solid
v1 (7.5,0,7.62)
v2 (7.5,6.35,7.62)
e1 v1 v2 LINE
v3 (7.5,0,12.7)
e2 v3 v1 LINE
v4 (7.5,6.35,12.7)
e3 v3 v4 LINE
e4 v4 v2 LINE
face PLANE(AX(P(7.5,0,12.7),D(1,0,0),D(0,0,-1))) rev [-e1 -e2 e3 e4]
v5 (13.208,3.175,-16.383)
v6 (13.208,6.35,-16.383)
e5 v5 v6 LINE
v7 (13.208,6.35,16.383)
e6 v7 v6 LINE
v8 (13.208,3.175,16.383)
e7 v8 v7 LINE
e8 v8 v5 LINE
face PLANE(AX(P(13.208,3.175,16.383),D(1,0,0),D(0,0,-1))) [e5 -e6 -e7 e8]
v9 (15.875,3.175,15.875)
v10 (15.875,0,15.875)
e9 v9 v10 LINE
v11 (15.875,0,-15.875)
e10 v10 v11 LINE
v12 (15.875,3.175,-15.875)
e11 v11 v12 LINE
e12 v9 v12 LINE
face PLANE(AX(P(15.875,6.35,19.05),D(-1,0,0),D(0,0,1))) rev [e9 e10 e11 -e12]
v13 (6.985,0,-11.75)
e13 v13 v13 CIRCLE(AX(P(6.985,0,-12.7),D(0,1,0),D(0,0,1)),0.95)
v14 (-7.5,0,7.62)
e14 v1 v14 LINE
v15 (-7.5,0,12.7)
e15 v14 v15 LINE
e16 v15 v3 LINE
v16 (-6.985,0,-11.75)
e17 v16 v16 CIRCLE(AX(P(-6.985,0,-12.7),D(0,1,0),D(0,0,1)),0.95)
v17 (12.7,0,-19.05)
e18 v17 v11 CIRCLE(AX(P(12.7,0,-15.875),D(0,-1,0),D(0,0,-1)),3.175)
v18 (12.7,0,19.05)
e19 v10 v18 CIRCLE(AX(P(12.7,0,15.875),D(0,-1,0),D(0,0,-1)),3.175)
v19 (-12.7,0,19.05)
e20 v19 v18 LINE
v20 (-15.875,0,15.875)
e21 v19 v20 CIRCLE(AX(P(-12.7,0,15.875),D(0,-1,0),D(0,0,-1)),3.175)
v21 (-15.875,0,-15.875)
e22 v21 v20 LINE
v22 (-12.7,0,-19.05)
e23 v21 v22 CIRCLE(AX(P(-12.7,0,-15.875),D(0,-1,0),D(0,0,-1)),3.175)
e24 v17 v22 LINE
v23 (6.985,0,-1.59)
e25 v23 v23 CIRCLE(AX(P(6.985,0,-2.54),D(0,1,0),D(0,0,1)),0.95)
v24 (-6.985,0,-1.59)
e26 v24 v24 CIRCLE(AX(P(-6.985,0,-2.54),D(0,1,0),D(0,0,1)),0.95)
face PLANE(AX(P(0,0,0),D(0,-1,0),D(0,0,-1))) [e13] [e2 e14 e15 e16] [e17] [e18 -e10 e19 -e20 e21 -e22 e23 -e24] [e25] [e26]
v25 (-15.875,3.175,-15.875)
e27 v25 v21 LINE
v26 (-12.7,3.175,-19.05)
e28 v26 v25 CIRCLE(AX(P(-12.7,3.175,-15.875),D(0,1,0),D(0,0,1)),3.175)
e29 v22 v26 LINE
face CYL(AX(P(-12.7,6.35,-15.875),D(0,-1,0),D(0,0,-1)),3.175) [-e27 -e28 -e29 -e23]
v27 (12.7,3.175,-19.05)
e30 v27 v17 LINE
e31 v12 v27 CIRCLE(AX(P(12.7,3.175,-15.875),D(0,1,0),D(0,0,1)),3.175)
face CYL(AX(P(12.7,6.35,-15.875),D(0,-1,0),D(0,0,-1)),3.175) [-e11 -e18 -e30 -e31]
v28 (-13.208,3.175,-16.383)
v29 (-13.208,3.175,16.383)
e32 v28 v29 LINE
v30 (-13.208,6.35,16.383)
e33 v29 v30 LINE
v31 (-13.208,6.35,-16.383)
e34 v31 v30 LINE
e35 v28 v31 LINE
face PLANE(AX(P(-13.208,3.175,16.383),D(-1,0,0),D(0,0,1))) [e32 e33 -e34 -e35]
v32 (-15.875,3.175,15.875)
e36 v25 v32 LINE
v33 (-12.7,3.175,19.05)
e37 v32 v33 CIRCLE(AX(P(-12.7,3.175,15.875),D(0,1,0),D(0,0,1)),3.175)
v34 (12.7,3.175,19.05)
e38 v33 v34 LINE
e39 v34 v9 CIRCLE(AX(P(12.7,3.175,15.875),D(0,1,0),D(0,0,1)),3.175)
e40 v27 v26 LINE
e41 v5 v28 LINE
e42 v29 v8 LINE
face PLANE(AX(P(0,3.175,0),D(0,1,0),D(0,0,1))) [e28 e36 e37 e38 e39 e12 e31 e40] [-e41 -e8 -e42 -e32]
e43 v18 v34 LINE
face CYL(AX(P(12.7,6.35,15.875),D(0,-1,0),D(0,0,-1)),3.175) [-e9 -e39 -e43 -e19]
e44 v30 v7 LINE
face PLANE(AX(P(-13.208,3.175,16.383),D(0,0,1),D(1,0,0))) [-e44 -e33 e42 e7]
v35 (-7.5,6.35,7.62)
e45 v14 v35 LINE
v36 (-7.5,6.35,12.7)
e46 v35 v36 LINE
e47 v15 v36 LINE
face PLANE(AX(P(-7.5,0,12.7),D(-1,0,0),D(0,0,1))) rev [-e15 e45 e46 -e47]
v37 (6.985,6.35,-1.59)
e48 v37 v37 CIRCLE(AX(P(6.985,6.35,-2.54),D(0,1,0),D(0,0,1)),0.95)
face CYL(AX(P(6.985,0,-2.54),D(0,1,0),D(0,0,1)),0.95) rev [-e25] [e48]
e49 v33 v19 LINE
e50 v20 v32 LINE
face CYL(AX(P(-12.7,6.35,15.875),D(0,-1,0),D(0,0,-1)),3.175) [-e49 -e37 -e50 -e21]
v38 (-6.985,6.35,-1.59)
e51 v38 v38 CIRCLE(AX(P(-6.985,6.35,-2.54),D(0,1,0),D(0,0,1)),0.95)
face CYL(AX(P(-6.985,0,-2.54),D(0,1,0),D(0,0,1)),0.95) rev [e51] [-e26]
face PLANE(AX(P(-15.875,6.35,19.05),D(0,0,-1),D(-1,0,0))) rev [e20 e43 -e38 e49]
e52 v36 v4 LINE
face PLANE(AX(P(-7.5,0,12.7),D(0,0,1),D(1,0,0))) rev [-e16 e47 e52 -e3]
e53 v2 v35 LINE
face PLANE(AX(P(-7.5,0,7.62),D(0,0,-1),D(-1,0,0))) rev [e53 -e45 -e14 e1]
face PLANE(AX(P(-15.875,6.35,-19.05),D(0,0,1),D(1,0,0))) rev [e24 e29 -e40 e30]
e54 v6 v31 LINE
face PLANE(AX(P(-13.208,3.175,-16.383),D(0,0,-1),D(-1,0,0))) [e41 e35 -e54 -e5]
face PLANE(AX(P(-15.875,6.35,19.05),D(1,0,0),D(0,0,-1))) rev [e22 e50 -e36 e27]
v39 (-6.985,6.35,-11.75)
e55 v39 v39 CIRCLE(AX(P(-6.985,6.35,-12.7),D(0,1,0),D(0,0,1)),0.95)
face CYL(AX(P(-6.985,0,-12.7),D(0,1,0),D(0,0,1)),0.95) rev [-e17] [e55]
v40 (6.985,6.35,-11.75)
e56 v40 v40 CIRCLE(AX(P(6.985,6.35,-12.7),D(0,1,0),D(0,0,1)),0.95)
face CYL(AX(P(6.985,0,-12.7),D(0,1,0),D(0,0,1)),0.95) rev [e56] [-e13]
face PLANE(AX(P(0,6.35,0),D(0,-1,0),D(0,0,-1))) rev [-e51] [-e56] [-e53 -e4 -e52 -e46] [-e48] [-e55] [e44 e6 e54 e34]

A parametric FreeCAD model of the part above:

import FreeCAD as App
import Part
import Sketcher

V = App.Vector
Q = App.Units.Quantity


def edges_at(feature, points):
    """Names of the edges that pass closest to the given points."""
    edges = feature.Shape.Edges
    near = lambda p: min(range(len(edges)), key=lambda i: edges[i].distToShape(Part.Vertex(*p))[0])
    return sorted({f"Edge{near(p) + 1}" for p in points})


def add_polygon(sketch, points):
    """Adds a closed chain of lines whose ends are joined by coincident constraints."""
    first, n = sketch.GeometryCount, len(points)
    for a, b in zip(points, points[1:] + points[:1]):
        sketch.addGeometry(Part.LineSegment(App.Vector(*a, 0), App.Vector(*b, 0)), False)
    for i in range(n):
        sketch.addConstraint(Sketcher.Constraint("Coincident", first + i, 2, first + (i + 1) % n, 1))

doc = App.newDocument("Part")
body = doc.addObject("PartDesign::Body", "Body")

# Sketch on XZ plane
sketch1 = doc.addObject("Sketcher::SketchObject", "Sketch")
body.addObject(sketch1)
sketch1.AttachmentSupport = (doc.XZ_Plane, [""])
sketch1.MapMode = "FlatFace"
add_polygon(sketch1, [(-16, -19), (-16, 19), (16, 19), (16, -19)])  # lines 0-3
sketch1.addConstraint(Sketcher.Constraint("Vertical", 0))
sketch1.addConstraint(Sketcher.Constraint("Horizontal", 1))
sketch1.addConstraint(Sketcher.Constraint("Vertical", 2))
sketch1.addConstraint(Sketcher.Constraint("Horizontal", 3))
sketch1.addConstraint(Sketcher.Constraint("Symmetric", 0, 2, 2, 2, -1, 1))
sketch1.addConstraint(Sketcher.Constraint("DistanceY", 0, 1, 0, 2, Q("1.5 in")))
sketch1.addConstraint(Sketcher.Constraint("DistanceX", 1, 1, 1, 2, Q("1.25 in")))
pad1 = doc.addObject("PartDesign::Pad", "Pad")
body.addObject(pad1)
pad1.Profile = sketch1
pad1.Length = Q("0.25 in")
pad1.Reversed = True

# Sketch on XZ plane
sketch2 = doc.addObject("Sketcher::SketchObject", "Sketch001")
body.addObject(sketch2)
sketch2.AttachmentSupport = (doc.XZ_Plane, [""])
sketch2.MapMode = "FlatFace"
sketch2.AttachmentOffset = App.Placement(V(0, 0, -0.25 * 25.4), App.Rotation())
sketch2.addGeometry(Part.Circle(V(-7, -2.5, 0), V(0, 0, 1), 0.9), False)
sketch2.addGeometry(Part.Circle(V(7, -2.5, 0), V(0, 0, 1), 0.9), False)
sketch2.addGeometry(Part.Circle(V(-7, -12.7, 0), V(0, 0, 1), 0.9), False)
sketch2.addGeometry(Part.Circle(V(7, -12.7, 0), V(0, 0, 1), 0.9), False)
sketch2.addConstraint(Sketcher.Constraint("Equal", 0, 1))
sketch2.addConstraint(Sketcher.Constraint("Equal", 1, 2))
sketch2.addConstraint(Sketcher.Constraint("Equal", 2, 3))
sketch2.addConstraint(Sketcher.Constraint("Symmetric", 0, 3, 1, 3, -2))
sketch2.addConstraint(Sketcher.Constraint("Symmetric", 2, 3, 3, 3, -2))
sketch2.addConstraint(Sketcher.Constraint("Vertical", 0, 3, 2, 3))
sketch2.addConstraint(Sketcher.Constraint("DistanceY", 0, 3, -1, 1, Q("0.1 in")))
sketch2.addConstraint(Sketcher.Constraint("DistanceY", 2, 3, -1, 1, Q("0.5 in")))
sketch2.addConstraint(Sketcher.Constraint("Diameter", 0, 1.9))
sketch2.addConstraint(Sketcher.Constraint("DistanceX", 0, 3, 1, 3, Q("0.55 in")))
pocket1 = doc.addObject("PartDesign::Pocket", "Pocket")
body.addObject(pocket1)
pocket1.Profile = sketch2
pocket1.Type = "ThroughAll"
pocket1.Reversed = True

# Sketch on XZ plane
sketch3 = doc.addObject("Sketcher::SketchObject", "Sketch002")
body.addObject(sketch3)
sketch3.AttachmentSupport = (doc.XZ_Plane, [""])
sketch3.MapMode = "FlatFace"
sketch3.AttachmentOffset = App.Placement(V(0, 0, -0.25 * 25.4), App.Rotation())
add_polygon(sketch3, [(-8, 8), (-8, 13), (8, 13), (8, 8)])  # lines 0-3
sketch3.addConstraint(Sketcher.Constraint("Vertical", 0))
sketch3.addConstraint(Sketcher.Constraint("Horizontal", 1))
sketch3.addConstraint(Sketcher.Constraint("Vertical", 2))
sketch3.addConstraint(Sketcher.Constraint("Horizontal", 3))
sketch3.addConstraint(Sketcher.Constraint("DistanceY", 0, 1, 0, 2, Q("0.2 in")))
sketch3.addConstraint(Sketcher.Constraint("DistanceY", -1, 1, 0, 2, Q("0.5 in")))
sketch3.addConstraint(Sketcher.Constraint("DistanceX", 1, 1, 1, 2, 15.0))
sketch3.addConstraint(Sketcher.Constraint("DistanceX", 0, 2, -1, 1, 7.5))
pocket2 = doc.addObject("PartDesign::Pocket", "Pocket001")
body.addObject(pocket2)
pocket2.Profile = sketch3
pocket2.Type = "ThroughAll"
pocket2.Reversed = True

# Sketch on XZ plane
sketch4 = doc.addObject("Sketcher::SketchObject", "Sketch003")
body.addObject(sketch4)
sketch4.AttachmentSupport = (doc.XZ_Plane, [""])
sketch4.MapMode = "FlatFace"
sketch4.AttachmentOffset = App.Placement(V(0, 0, -0.25 * 25.4), App.Rotation())
add_polygon(sketch4, [(-16, -19), (-16, 19), (16, 19), (16, -19)])  # lines 0-3
add_polygon(sketch4, [(13, 16), (-13, 16), (-13, -16), (13, -16)])  # lines 4-7
sketch4.addConstraint(Sketcher.Constraint("Vertical", 0))
sketch4.addConstraint(Sketcher.Constraint("Horizontal", 1))
sketch4.addConstraint(Sketcher.Constraint("Vertical", 2))
sketch4.addConstraint(Sketcher.Constraint("Horizontal", 3))
sketch4.addConstraint(Sketcher.Constraint("Horizontal", 4))
sketch4.addConstraint(Sketcher.Constraint("Vertical", 5))
sketch4.addConstraint(Sketcher.Constraint("Horizontal", 6))
sketch4.addConstraint(Sketcher.Constraint("Vertical", 7))
sketch4.addConstraint(Sketcher.Constraint("Symmetric", 0, 2, 2, 2, -1, 1))
sketch4.addConstraint(Sketcher.Constraint("Symmetric", 4, 2, 6, 2, -1, 1))
sketch4.addConstraint(Sketcher.Constraint("DistanceY", 0, 1, 0, 2, Q("1.5 in")))
sketch4.addConstraint(Sketcher.Constraint("DistanceX", 1, 1, 1, 2, Q("1.25 in")))
sketch4.addConstraint(Sketcher.Constraint("DistanceX", 4, 2, 4, 1, Q("1.04 in")))
sketch4.addConstraint(Sketcher.Constraint("DistanceY", 5, 2, 5, 1, Q("1.29 in")))
pocket3 = doc.addObject("PartDesign::Pocket", "Pocket002")
body.addObject(pocket3)
pocket3.Profile = sketch4
pocket3.Length = Q("0.125 in")
pocket3.Reversed = True
doc.recompute()

fillet = doc.addObject("PartDesign::Fillet", "Fillet")
body.addObject(fillet)
fillet.Base = (pocket3, edges_at(pocket3, [
    (15.875, 1.587, 19.05),
    (-15.875, 1.587, 19.05),
    (-15.875, 1.587, -19.05),
    (15.875, 1.587, -19.05),
]))
fillet.Radius = Q("0.125 in")

doc.recompute()
